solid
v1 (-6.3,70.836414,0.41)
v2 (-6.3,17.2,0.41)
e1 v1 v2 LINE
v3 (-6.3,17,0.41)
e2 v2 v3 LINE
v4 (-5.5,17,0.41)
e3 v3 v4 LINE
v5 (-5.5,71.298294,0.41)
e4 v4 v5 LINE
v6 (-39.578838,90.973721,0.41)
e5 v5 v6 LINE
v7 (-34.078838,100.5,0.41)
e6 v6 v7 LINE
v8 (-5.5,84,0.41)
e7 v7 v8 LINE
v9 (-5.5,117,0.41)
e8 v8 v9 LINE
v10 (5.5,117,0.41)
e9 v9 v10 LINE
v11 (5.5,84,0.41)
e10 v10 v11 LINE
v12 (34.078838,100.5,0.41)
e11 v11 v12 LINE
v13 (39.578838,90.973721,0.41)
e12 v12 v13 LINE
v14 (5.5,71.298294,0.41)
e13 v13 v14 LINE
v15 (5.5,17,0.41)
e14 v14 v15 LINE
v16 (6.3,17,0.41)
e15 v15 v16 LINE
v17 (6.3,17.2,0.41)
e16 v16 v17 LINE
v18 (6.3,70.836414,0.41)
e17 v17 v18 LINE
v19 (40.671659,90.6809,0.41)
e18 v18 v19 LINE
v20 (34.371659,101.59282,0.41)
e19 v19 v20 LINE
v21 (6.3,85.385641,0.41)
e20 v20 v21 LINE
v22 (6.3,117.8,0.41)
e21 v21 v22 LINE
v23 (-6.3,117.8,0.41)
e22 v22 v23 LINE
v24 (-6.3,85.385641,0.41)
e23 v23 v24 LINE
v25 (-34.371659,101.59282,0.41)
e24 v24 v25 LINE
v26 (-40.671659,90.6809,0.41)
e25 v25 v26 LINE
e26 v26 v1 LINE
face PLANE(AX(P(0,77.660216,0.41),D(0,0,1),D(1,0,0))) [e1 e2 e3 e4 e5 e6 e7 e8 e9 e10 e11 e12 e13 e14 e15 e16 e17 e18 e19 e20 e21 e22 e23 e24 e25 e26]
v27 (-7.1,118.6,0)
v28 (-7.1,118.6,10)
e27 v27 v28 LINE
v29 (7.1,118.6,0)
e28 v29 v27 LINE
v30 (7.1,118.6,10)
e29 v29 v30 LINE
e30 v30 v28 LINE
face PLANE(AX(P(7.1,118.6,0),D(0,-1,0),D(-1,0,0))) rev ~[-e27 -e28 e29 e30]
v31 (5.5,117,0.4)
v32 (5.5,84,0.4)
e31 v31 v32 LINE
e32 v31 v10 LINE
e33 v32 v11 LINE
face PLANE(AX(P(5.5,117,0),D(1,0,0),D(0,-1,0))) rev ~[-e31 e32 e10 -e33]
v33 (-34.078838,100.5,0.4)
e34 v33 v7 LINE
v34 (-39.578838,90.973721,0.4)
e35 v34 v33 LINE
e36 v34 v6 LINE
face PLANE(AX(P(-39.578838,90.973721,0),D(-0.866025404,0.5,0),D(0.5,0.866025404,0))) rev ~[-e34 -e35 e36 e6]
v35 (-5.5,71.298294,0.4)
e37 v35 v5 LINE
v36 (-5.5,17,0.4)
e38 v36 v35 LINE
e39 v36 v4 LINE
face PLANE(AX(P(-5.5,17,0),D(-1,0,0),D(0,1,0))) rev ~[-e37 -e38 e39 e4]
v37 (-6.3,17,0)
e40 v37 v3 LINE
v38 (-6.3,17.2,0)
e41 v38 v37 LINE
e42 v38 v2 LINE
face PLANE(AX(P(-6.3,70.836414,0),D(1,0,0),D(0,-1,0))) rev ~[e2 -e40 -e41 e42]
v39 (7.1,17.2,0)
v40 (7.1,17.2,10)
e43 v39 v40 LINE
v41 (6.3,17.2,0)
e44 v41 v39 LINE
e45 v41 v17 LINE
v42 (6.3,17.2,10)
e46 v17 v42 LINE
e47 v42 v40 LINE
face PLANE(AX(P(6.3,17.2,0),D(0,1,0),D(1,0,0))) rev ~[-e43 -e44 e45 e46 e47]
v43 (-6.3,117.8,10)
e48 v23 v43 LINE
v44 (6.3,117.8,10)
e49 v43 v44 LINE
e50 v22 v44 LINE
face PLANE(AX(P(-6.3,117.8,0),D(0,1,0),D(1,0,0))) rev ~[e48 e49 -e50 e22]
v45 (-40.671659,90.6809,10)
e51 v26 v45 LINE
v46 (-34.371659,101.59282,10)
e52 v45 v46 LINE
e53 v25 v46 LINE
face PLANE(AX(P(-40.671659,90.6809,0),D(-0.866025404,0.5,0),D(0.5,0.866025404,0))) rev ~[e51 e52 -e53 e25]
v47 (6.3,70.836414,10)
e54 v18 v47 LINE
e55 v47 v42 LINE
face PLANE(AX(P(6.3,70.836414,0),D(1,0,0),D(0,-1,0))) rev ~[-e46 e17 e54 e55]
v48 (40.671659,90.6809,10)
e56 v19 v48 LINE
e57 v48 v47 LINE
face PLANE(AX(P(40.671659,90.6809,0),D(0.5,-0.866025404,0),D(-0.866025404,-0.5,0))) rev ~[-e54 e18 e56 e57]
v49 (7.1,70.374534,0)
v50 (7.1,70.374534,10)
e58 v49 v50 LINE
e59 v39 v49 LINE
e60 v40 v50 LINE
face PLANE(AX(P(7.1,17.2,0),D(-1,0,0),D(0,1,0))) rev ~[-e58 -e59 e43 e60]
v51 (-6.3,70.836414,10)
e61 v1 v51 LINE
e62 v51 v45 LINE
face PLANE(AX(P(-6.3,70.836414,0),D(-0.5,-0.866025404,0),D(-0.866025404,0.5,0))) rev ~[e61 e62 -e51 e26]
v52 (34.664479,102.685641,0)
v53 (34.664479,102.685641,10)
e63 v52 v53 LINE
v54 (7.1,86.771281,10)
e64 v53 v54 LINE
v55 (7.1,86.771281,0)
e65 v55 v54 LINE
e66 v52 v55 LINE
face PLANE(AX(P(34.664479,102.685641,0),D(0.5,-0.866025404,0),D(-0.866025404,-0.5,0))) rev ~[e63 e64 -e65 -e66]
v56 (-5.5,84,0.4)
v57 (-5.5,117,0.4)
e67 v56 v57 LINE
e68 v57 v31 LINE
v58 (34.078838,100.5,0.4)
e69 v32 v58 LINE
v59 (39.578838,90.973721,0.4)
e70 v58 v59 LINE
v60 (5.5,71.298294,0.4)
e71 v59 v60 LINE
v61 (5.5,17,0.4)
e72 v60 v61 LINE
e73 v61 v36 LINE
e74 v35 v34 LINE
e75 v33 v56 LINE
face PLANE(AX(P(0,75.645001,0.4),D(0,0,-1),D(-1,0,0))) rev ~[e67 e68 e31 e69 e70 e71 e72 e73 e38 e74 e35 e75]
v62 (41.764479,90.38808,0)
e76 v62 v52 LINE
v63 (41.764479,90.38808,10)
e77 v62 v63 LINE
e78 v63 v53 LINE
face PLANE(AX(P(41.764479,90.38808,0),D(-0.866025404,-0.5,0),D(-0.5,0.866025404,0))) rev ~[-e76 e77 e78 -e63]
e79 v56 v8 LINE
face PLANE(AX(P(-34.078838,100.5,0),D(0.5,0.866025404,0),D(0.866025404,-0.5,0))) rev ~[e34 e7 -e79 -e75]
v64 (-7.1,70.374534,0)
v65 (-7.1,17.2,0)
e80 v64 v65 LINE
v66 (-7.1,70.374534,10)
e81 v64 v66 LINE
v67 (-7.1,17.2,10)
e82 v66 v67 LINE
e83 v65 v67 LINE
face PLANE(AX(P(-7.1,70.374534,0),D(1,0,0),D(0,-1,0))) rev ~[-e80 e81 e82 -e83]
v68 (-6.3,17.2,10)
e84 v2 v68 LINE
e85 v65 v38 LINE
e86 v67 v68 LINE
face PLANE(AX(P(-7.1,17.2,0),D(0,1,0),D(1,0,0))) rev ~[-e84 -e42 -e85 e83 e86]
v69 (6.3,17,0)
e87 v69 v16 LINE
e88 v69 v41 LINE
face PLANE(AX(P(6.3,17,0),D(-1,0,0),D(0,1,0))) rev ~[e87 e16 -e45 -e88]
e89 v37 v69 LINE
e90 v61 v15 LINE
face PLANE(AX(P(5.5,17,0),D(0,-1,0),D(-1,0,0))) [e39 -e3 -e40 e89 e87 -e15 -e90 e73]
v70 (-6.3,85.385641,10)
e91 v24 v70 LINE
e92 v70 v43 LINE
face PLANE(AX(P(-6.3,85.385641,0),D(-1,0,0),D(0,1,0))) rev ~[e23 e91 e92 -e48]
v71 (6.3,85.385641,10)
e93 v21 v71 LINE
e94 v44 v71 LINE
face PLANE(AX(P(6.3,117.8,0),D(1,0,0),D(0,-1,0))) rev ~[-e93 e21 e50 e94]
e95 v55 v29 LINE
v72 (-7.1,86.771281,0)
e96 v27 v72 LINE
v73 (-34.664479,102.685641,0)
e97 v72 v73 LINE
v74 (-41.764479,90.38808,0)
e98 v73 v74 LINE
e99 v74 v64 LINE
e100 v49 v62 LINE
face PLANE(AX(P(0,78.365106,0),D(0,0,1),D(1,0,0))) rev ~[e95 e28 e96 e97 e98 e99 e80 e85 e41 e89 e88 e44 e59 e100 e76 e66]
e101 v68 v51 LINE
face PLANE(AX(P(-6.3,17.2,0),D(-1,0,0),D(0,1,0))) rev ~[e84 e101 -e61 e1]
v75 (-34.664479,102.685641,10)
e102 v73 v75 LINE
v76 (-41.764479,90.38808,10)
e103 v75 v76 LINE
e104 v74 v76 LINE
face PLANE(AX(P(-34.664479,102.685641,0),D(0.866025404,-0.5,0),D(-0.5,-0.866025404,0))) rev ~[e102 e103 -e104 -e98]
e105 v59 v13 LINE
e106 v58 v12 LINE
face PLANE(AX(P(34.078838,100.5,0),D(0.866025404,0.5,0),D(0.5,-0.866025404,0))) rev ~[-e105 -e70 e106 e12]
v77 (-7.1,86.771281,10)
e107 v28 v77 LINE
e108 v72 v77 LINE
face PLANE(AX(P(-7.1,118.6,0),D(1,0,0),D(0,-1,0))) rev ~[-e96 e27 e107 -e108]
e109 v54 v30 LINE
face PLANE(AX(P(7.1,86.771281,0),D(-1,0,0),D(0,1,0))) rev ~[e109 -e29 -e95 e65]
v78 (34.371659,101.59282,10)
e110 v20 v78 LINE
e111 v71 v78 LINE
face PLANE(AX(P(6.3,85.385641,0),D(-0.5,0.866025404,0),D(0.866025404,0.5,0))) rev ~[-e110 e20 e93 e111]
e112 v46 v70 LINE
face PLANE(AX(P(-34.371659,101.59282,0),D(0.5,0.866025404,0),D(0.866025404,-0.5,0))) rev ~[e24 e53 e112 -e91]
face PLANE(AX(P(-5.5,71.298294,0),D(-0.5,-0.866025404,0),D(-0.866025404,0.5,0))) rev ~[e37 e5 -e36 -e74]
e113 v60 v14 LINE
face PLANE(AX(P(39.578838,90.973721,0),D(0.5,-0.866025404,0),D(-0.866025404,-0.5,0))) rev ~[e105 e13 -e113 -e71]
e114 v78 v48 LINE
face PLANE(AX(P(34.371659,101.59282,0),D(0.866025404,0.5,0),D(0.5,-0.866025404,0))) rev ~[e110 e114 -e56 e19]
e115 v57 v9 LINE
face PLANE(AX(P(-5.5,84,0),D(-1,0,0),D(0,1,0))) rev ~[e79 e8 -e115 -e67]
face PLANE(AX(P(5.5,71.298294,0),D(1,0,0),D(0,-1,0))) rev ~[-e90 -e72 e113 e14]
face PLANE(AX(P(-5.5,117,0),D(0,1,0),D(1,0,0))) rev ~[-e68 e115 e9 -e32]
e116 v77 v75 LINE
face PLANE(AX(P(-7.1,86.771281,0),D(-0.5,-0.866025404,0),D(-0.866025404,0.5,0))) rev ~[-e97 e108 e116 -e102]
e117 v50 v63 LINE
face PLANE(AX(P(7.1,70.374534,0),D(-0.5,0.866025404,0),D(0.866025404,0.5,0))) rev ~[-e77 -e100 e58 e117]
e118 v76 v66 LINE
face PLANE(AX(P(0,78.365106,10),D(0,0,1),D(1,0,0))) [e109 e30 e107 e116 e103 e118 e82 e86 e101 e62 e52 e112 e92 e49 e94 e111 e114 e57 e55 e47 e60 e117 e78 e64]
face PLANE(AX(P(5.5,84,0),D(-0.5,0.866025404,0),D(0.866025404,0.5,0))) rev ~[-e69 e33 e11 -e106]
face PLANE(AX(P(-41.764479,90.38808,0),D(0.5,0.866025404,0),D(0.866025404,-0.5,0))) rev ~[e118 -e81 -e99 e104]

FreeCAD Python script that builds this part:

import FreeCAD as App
import Part
import Sketcher

V = App.Vector
Q = App.Units.Quantity

doc = App.newDocument("Part")
body = doc.addObject("PartDesign::Body", "Body")

# Sketch on XY plane
sketch1 = body.newObject("Sketcher::SketchObject", "Sketch")
sketch1.AttachmentSupport = (doc.getObject("XY_Plane"), [""])
sketch1.MapMode = "FlatFace"
sketch1.addGeometry([
    Part.LineSegment(V(-5.5, 17, 0), V(-5.5, 71.3, 0)),  # 0
    Part.LineSegment(V(-5.5, 71.3, 0), V(-39.6, 91, 0)),  # 1
    Part.LineSegment(V(-39.6, 91, 0), V(-34.1, 100.5, 0)),  # 2
    Part.LineSegment(V(-34.1, 100.5, 0), V(-5.5, 84, 0)),  # 3
    Part.LineSegment(V(-5.5, 84, 0), V(-5.5, 117, 0)),  # 4
    Part.LineSegment(V(-5.5, 117, 0), V(5.5, 117, 0)),  # 5
    Part.LineSegment(V(5.5, 117, 0), V(5.5, 84, 0)),  # 6
    Part.LineSegment(V(5.5, 84, 0), V(34.1, 100.5, 0)),  # 7
    Part.LineSegment(V(34.1, 100.5, 0), V(39.6, 91, 0)),  # 8
    Part.LineSegment(V(39.6, 91, 0), V(5.5, 71.3, 0)),  # 9
    Part.LineSegment(V(5.5, 71.3, 0), V(5.5, 17, 0)),  # 10
    Part.LineSegment(V(5.5, 17, 0), V(6.3, 17, 0)),  # 11
    Part.LineSegment(V(6.3, 17, 0), V(6.3, 70.8, 0)),  # 12
    Part.LineSegment(V(6.3, 70.8, 0), V(40.7, 90.7, 0)),  # 13
    Part.LineSegment(V(40.7, 90.7, 0), V(34.4, 101.6, 0)),  # 14
    Part.LineSegment(V(34.4, 101.6, 0), V(6.3, 85.4, 0)),  # 15
    Part.LineSegment(V(6.3, 85.4, 0), V(6.3, 117.8, 0)),  # 16
    Part.LineSegment(V(6.3, 117.8, 0), V(-6.3, 117.8, 0)),  # 17
    Part.LineSegment(V(-6.3, 117.8, 0), V(-6.3, 85.4, 0)),  # 18
    Part.LineSegment(V(-6.3, 85.4, 0), V(-34.4, 101.6, 0)),  # 19
    Part.LineSegment(V(-34.4, 101.6, 0), V(-40.7, 90.7, 0)),  # 20
    Part.LineSegment(V(-40.7, 90.7, 0), V(-6.3, 70.8, 0)),  # 21
    Part.LineSegment(V(-6.3, 70.8, 0), V(-6.3, 17, 0)),  # 22
    Part.LineSegment(V(-6.3, 17, 0), V(-5.5, 17, 0)),  # 23
], False)
sketch1.addConstraint([
    Sketcher.Constraint("Coincident", 0, 2, 1, 1),
    Sketcher.Constraint("Coincident", 1, 2, 2, 1),
    Sketcher.Constraint("Coincident", 2, 2, 3, 1),
    Sketcher.Constraint("Coincident", 3, 2, 4, 1),
    Sketcher.Constraint("Coincident", 4, 2, 5, 1),
    Sketcher.Constraint("Coincident", 5, 2, 6, 1),
    Sketcher.Constraint("Coincident", 6, 2, 7, 1),
    Sketcher.Constraint("Coincident", 7, 2, 8, 1),
    Sketcher.Constraint("Coincident", 8, 2, 9, 1),
    Sketcher.Constraint("Coincident", 9, 2, 10, 1),
    Sketcher.Constraint("Coincident", 10, 2, 11, 1),
    Sketcher.Constraint("Coincident", 11, 2, 12, 1),
    Sketcher.Constraint("Coincident", 12, 2, 13, 1),
    Sketcher.Constraint("Coincident", 13, 2, 14, 1),
    Sketcher.Constraint("Coincident", 14, 2, 15, 1),
    Sketcher.Constraint("Coincident", 15, 2, 16, 1),
    Sketcher.Constraint("Coincident", 16, 2, 17, 1),
    Sketcher.Constraint("Coincident", 17, 2, 18, 1),
    Sketcher.Constraint("Coincident", 18, 2, 19, 1),
    Sketcher.Constraint("Coincident", 19, 2, 20, 1),
    Sketcher.Constraint("Coincident", 20, 2, 21, 1),
    Sketcher.Constraint("Coincident", 21, 2, 22, 1),
    Sketcher.Constraint("Coincident", 22, 2, 23, 1),
    Sketcher.Constraint("Coincident", 23, 2, 0, 1),
    Sketcher.Constraint("Vertical", 0),
    Sketcher.Constraint("Vertical", 4),
    Sketcher.Constraint("Horizontal", 5),
    Sketcher.Constraint("Vertical", 6),
    Sketcher.Constraint("Vertical", 10),
    Sketcher.Constraint("Horizontal", 11),
    Sketcher.Constraint("Vertical", 12),
    Sketcher.Constraint("Vertical", 16),
    Sketcher.Constraint("Horizontal", 17),
    Sketcher.Constraint("Vertical", 18),
    Sketcher.Constraint("Vertical", 22),
    Sketcher.Constraint("Horizontal", 23),
    Sketcher.Constraint("Symmetric", 3, 2, 6, 2, -2),
    Sketcher.Constraint("Symmetric", 2, 2, 7, 2, -2),
    Sketcher.Constraint("Symmetric", 1, 2, 8, 2, -2),
    Sketcher.Constraint("Symmetric", 0, 2, 9, 2, -2),
    Sketcher.Constraint("Symmetric", 15, 2, 18, 2, -2),
    Sketcher.Constraint("Symmetric", 14, 2, 19, 2, -2),
    Sketcher.Constraint("Symmetric", 13, 2, 20, 2, -2),
    Sketcher.Constraint("Symmetric", 12, 2, 21, 2, -2),
    Sketcher.Constraint("Perpendicular", 1, 2),
    Sketcher.Constraint("Perpendicular", 2, 3),
    Sketcher.Constraint("Parallel", 9, 13),
    Sketcher.Constraint("Perpendicular", 13, 14),
    Sketcher.Constraint("Perpendicular", 14, 15),
    Sketcher.Constraint("Horizontal", 11, 2, 22, 2),
    Sketcher.Constraint("Vertical", 0, 2, 3, 2),
    Sketcher.Constraint("Vertical", 12, 2, 15, 2),
    Sketcher.Constraint("DistanceX", 5, 1, 5, 2, 11.0),
    Sketcher.Constraint("DistanceY", 4, 1, 4, 2, 33.0),
    Sketcher.Constraint("Angle", 1, Q("150 deg")),
    Sketcher.Constraint("Distance", 2, 11.0),
    Sketcher.Constraint("Distance", 3, 33.0),
    Sketcher.Constraint("DistanceX", 11, 1, 11, 2, 0.8),
    Sketcher.Constraint("DistanceY", -1, 1, 3, 2, 84.0),
    Sketcher.Constraint("DistanceY", -1, 1, 10, 2, 17.0),
    Sketcher.Constraint("Distance", 14, 12.6),
    Sketcher.Constraint("DistanceY", -1, 1, 16, 2, 117.8),
    Sketcher.Constraint("DistanceY", 16, 1, 16, 2, 32.414359),
    Sketcher.Constraint("DistanceY", -1, 1, 13, 2, 90.6809),
])
pad1 = body.newObject("PartDesign::Pad", "Pad")
pad1.Profile = sketch1
pad1.Length = 0.41

# Sketch on XY plane
sketch2 = body.newObject("Sketcher::SketchObject", "Sketch001")
sketch2.AttachmentSupport = (doc.getObject("XY_Plane"), [""])
sketch2.MapMode = "FlatFace"
sketch2.addGeometry([
    Part.LineSegment(V(-6, 71, 0), V(-6, 17, 0)),  # 0
    Part.LineSegment(V(-6, 17, 0), V(6, 17, 0)),  # 1
    Part.LineSegment(V(6, 17, 0), V(6, 71, 0)),  # 2
    Part.LineSegment(V(6, 71, 0), V(40, 91, 0)),  # 3
    Part.LineSegment(V(40, 91, 0), V(34, 100, 0)),  # 4
    Part.LineSegment(V(34, 100, 0), V(6, 84, 0)),  # 5
    Part.LineSegment(V(6, 84, 0), V(6, 117, 0)),  # 6
    Part.LineSegment(V(6, 117, 0), V(-6, 117, 0)),  # 7
    Part.LineSegment(V(-6, 117, 0), V(-6, 84, 0)),  # 8
    Part.LineSegment(V(-6, 84, 0), V(-34, 100, 0)),  # 9
    Part.LineSegment(V(-34, 100, 0), V(-40, 91, 0)),  # 10
    Part.LineSegment(V(-40, 91, 0), V(-6, 71, 0)),  # 11
], False)
sketch2.addConstraint([
    Sketcher.Constraint("Coincident", 0, 2, 1, 1),
    Sketcher.Constraint("Coincident", 1, 2, 2, 1),
    Sketcher.Constraint("Coincident", 2, 2, 3, 1),
    Sketcher.Constraint("Coincident", 3, 2, 4, 1),
    Sketcher.Constraint("Coincident", 4, 2, 5, 1),
    Sketcher.Constraint("Coincident", 5, 2, 6, 1),
    Sketcher.Constraint("Coincident", 6, 2, 7, 1),
    Sketcher.Constraint("Coincident", 7, 2, 8, 1),
    Sketcher.Constraint("Coincident", 8, 2, 9, 1),
    Sketcher.Constraint("Coincident", 9, 2, 10, 1),
    Sketcher.Constraint("Coincident", 10, 2, 11, 1),
    Sketcher.Constraint("Coincident", 11, 2, 0, 1),
    Sketcher.Constraint("Vertical", 0),
    Sketcher.Constraint("Horizontal", 1),
    Sketcher.Constraint("Vertical", 2),
    Sketcher.Constraint("Vertical", 6),
    Sketcher.Constraint("Horizontal", 7),
    Sketcher.Constraint("Vertical", 8),
    Sketcher.Constraint("Symmetric", 5, 2, 8, 2, -2),
    Sketcher.Constraint("Symmetric", 4, 2, 9, 2, -2),
    Sketcher.Constraint("Symmetric", 3, 2, 10, 2, -2),
    Sketcher.Constraint("Symmetric", 2, 2, 11, 2, -2),
    Sketcher.Constraint("Perpendicular", 3, 4),
    Sketcher.Constraint("Perpendicular", 4, 5),
    Sketcher.Constraint("Vertical", 2, 2, 5, 2),
    Sketcher.Constraint("DistanceX", 1, 1, 1, 2, 11.0),
    Sketcher.Constraint("DistanceY", 6, 1, 6, 2, 33.0),
    Sketcher.Constraint("Angle", 3, Q("30 deg")),
    Sketcher.Constraint("Distance", 4, 11.0),
    Sketcher.Constraint("Distance", 5, 33.0),
    Sketcher.Constraint("DistanceY", -1, 1, 0, 2, 17.0),
    Sketcher.Constraint("DistanceY", -1, 1, 5, 2, 84.0),
])
pad2 = body.newObject("PartDesign::Pad", "Pad001")
pad2.Profile = sketch2
pad2.Length = 0.4

# Sketch on XY plane
sketch3 = body.newObject("Sketcher::SketchObject", "Sketch002")
sketch3.AttachmentSupport = (doc.getObject("XY_Plane"), [""])
sketch3.MapMode = "FlatFace"
sketch3.addGeometry([
    Part.LineSegment(V(-6.3, 17.2, 0), V(-6.3, 70.8, 0)),  # 0
    Part.LineSegment(V(-6.3, 70.8, 0), V(-40.7, 90.7, 0)),  # 1
    Part.LineSegment(V(-40.7, 90.7, 0), V(-34.4, 101.6, 0)),  # 2
    Part.LineSegment(V(-34.4, 101.6, 0), V(-6.3, 85.4, 0)),  # 3
    Part.LineSegment(V(-6.3, 85.4, 0), V(-6.3, 117.8, 0)),  # 4
    Part.LineSegment(V(-6.3, 117.8, 0), V(6.3, 117.8, 0)),  # 5
    Part.LineSegment(V(6.3, 117.8, 0), V(6.3, 85.4, 0)),  # 6
    Part.LineSegment(V(6.3, 85.4, 0), V(34.4, 101.6, 0)),  # 7
    Part.LineSegment(V(34.4, 101.6, 0), V(40.7, 90.7, 0)),  # 8
    Part.LineSegment(V(40.7, 90.7, 0), V(6.3, 70.8, 0)),  # 9
    Part.LineSegment(V(6.3, 70.8, 0), V(6.3, 17.2, 0)),  # 10
    Part.LineSegment(V(6.3, 17.2, 0), V(7.1, 17.2, 0)),  # 11
    Part.LineSegment(V(7.1, 17.2, 0), V(7.1, 70.4, 0)),  # 12
    Part.LineSegment(V(7.1, 70.4, 0), V(41.8, 90.4, 0)),  # 13
    Part.LineSegment(V(41.8, 90.4, 0), V(34.7, 102.7, 0)),  # 14
    Part.LineSegment(V(34.7, 102.7, 0), V(7.1, 86.8, 0)),  # 15
    Part.LineSegment(V(7.1, 86.8, 0), V(7.1, 118.6, 0)),  # 16
    Part.LineSegment(V(7.1, 118.6, 0), V(-7.1, 118.6, 0)),  # 17
    Part.LineSegment(V(-7.1, 118.6, 0), V(-7.1, 86.8, 0)),  # 18
    Part.LineSegment(V(-7.1, 86.8, 0), V(-34.7, 102.7, 0)),  # 19
    Part.LineSegment(V(-34.7, 102.7, 0), V(-41.8, 90.4, 0)),  # 20
    Part.LineSegment(V(-41.8, 90.4, 0), V(-7.1, 70.4, 0)),  # 21
    Part.LineSegment(V(-7.1, 70.4, 0), V(-7.1, 17.2, 0)),  # 22
    Part.LineSegment(V(-7.1, 17.2, 0), V(-6.3, 17.2, 0)),  # 23
], False)
sketch3.addConstraint([
    Sketcher.Constraint("Coincident", 0, 2, 1, 1),
    Sketcher.Constraint("Coincident", 1, 2, 2, 1),
    Sketcher.Constraint("Coincident", 2, 2, 3, 1),
    Sketcher.Constraint("Coincident", 3, 2, 4, 1),
    Sketcher.Constraint("Coincident", 4, 2, 5, 1),
    Sketcher.Constraint("Coincident", 5, 2, 6, 1),
    Sketcher.Constraint("Coincident", 6, 2, 7, 1),
    Sketcher.Constraint("Coincident", 7, 2, 8, 1),
    Sketcher.Constraint("Coincident", 8, 2, 9, 1),
    Sketcher.Constraint("Coincident", 9, 2, 10, 1),
    Sketcher.Constraint("Coincident", 10, 2, 11, 1),
    Sketcher.Constraint("Coincident", 11, 2, 12, 1),
    Sketcher.Constraint("Coincident", 12, 2, 13, 1),
    Sketcher.Constraint("Coincident", 13, 2, 14, 1),
    Sketcher.Constraint("Coincident", 14, 2, 15, 1),
    Sketcher.Constraint("Coincident", 15, 2, 16, 1),
    Sketcher.Constraint("Coincident", 16, 2, 17, 1),
    Sketcher.Constraint("Coincident", 17, 2, 18, 1),
    Sketcher.Constraint("Coincident", 18, 2, 19, 1),
    Sketcher.Constraint("Coincident", 19, 2, 20, 1),
    Sketcher.Constraint("Coincident", 20, 2, 21, 1),
    Sketcher.Constraint("Coincident", 21, 2, 22, 1),
    Sketcher.Constraint("Coincident", 22, 2, 23, 1),
    Sketcher.Constraint("Coincident", 23, 2, 0, 1),
    Sketcher.Constraint("Vertical", 0),
    Sketcher.Constraint("Vertical", 4),
    Sketcher.Constraint("Horizontal", 5),
    Sketcher.Constraint("Vertical", 6),
    Sketcher.Constraint("Vertical", 10),
    Sketcher.Constraint("Horizontal", 11),
    Sketcher.Constraint("Vertical", 12),
    Sketcher.Constraint("Vertical", 16),
    Sketcher.Constraint("Horizontal", 17),
    Sketcher.Constraint("Vertical", 18),
    Sketcher.Constraint("Vertical", 22),
    Sketcher.Constraint("Horizontal", 23),
    Sketcher.Constraint("Symmetric", 3, 2, 6, 2, -2),
    Sketcher.Constraint("Symmetric", 2, 2, 7, 2, -2),
    Sketcher.Constraint("Symmetric", 1, 2, 8, 2, -2),
    Sketcher.Constraint("Symmetric", 0, 2, 9, 2, -2),
    Sketcher.Constraint("Symmetric", 15, 2, 18, 2, -2),
    Sketcher.Constraint("Symmetric", 14, 2, 19, 2, -2),
    Sketcher.Constraint("Symmetric", 13, 2, 20, 2, -2),
    Sketcher.Constraint("Symmetric", 12, 2, 21, 2, -2),
    Sketcher.Constraint("Perpendicular", 1, 2),
    Sketcher.Constraint("Perpendicular", 2, 3),
    Sketcher.Constraint("Parallel", 9, 13),
    Sketcher.Constraint("Perpendicular", 13, 14),
    Sketcher.Constraint("Perpendicular", 14, 15),
    Sketcher.Constraint("Horizontal", 11, 2, 22, 2),
    Sketcher.Constraint("Vertical", 0, 2, 3, 2),
    Sketcher.Constraint("Vertical", 12, 2, 15, 2),
    Sketcher.Constraint("Angle", 1, Q("150 deg")),
    Sketcher.Constraint("DistanceX", 5, 1, 5, 2, 12.6),
    Sketcher.Constraint("DistanceX", 11, 1, 11, 2, 0.8),
    Sketcher.Constraint("Distance", 2, 12.6),
    Sketcher.Constraint("Distance", 14, 14.2),
    Sketcher.Constraint("DistanceY", -1, 1, 4, 2, 117.8),
    Sketcher.Constraint("DistanceY", -1, 1, 10, 2, 17.2),
    Sketcher.Constraint("DistanceY", -1, 1, 16, 2, 118.6),
    Sketcher.Constraint("DistanceY", 6, 2, 14, 2, 17.3),
    Sketcher.Constraint("DistanceY", 4, 1, 4, 2, 32.414359),
    Sketcher.Constraint("DistanceY", 16, 1, 16, 2, 31.828719),
    Sketcher.Constraint("DistanceY", -1, 1, 1, 2, 90.6809),
])
pad3 = body.newObject("PartDesign::Pad", "Pad002")
pad3.Profile = sketch3
pad3.Length = 10

doc.recompute()
